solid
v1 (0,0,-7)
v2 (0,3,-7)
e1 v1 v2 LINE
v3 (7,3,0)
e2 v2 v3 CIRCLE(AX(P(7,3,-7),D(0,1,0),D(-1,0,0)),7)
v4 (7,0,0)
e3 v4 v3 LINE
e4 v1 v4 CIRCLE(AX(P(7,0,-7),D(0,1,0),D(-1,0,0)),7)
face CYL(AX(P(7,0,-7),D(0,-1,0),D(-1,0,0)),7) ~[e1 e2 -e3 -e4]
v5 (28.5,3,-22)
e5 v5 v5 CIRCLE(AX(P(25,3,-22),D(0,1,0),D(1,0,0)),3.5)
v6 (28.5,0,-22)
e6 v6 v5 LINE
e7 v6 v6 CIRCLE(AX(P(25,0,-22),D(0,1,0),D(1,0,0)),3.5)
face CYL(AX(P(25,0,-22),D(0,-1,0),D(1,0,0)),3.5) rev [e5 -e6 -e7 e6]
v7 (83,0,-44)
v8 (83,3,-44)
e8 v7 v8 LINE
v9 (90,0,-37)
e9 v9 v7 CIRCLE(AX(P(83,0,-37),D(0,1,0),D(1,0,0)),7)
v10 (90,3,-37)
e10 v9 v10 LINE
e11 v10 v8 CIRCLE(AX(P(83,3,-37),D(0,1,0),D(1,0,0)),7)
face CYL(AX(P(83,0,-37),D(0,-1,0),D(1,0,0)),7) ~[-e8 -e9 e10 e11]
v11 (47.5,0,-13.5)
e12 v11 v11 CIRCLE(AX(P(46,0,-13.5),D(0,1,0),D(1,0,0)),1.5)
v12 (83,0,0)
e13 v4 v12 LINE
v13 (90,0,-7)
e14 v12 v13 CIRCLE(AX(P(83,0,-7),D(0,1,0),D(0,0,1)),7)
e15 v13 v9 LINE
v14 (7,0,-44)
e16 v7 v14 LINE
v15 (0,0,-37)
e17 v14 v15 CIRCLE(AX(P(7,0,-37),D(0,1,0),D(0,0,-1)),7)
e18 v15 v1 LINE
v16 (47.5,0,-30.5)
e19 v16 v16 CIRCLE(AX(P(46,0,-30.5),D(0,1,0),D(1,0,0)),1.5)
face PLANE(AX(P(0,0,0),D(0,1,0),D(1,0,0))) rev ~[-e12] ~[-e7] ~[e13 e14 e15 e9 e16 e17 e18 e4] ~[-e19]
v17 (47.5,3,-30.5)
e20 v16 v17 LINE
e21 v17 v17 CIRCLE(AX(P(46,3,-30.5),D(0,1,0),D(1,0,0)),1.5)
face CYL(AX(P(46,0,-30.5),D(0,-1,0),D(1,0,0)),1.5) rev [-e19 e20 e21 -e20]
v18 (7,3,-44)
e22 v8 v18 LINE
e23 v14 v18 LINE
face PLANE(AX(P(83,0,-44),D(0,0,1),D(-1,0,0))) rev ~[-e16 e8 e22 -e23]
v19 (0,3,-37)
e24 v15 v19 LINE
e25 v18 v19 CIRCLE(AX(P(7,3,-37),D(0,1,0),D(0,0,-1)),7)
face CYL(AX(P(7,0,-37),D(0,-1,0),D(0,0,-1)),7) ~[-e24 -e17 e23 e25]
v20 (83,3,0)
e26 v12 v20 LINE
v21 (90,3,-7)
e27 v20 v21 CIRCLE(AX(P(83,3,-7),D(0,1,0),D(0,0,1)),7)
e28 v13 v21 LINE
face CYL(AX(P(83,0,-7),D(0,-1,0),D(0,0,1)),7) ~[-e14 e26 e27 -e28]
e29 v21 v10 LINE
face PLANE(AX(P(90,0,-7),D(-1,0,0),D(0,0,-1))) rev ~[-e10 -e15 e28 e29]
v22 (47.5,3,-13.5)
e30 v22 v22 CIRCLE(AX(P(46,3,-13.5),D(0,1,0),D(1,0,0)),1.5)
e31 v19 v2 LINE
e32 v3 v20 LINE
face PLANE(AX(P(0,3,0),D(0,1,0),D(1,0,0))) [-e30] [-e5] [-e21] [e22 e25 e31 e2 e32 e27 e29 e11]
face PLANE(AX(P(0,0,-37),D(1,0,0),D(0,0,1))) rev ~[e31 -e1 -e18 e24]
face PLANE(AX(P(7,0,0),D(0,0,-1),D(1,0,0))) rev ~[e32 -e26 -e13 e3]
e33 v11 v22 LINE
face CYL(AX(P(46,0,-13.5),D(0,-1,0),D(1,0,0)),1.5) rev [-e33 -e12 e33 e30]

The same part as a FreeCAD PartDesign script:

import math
import FreeCAD as App
import Part
import Sketcher

V = App.Vector
Q = App.Units.Quantity

doc = App.newDocument("Part")
body = doc.addObject("PartDesign::Body", "Body")

# Sketch on XZ plane
sketch1 = body.newObject("Sketcher::SketchObject", "Sketch")
sketch1.AttachmentSupport = (doc.getObject("XZ_Plane"), [""])
sketch1.MapMode = "FlatFace"
sketch1.addGeometry([
    Part.ArcOfCircle(Part.Circle(V(7, -7, 0), V(0, 0, 1), 7), math.radians(90), math.radians(180)),  # 0
    Part.LineSegment(V(7, 0, 0), V(83, 0, 0)),  # 1
    Part.ArcOfCircle(Part.Circle(V(83, -7, 0), V(0, 0, 1), 7), math.radians(0), math.radians(90)),  # 2
    Part.LineSegment(V(90, -7, 0), V(90, -37, 0)),  # 3
    Part.ArcOfCircle(Part.Circle(V(83, -37, 0), V(0, 0, 1), 7), math.radians(-90), math.radians(0)),  # 4
    Part.LineSegment(V(83, -44, 0), V(7, -44, 0)),  # 5
    Part.ArcOfCircle(Part.Circle(V(7, -37, 0), V(0, 0, 1), 7), math.radians(180), math.radians(270)),  # 6
    Part.LineSegment(V(0, -37, 0), V(0, -7, 0)),  # 7
    Part.Circle(V(46, -13.5, 0), V(0, 0, 1), 1.5),  # 8
    Part.Circle(V(25, -22, 0), V(0, 0, 1), 3.5),  # 9
    Part.Circle(V(46, -30.5, 0), V(0, 0, 1), 1.5),  # 10
], False)
sketch1.addConstraint([
    Sketcher.Constraint("Tangent", 0, 1, 1, 1),
    Sketcher.Constraint("Tangent", 1, 2, 2, 2),
    Sketcher.Constraint("Tangent", 2, 1, 3, 1),
    Sketcher.Constraint("Tangent", 3, 2, 4, 2),
    Sketcher.Constraint("Tangent", 4, 1, 5, 1),
    Sketcher.Constraint("Tangent", 5, 2, 6, 2),
    Sketcher.Constraint("Tangent", 6, 1, 7, 1),
    Sketcher.Constraint("Tangent", 7, 2, 0, 2),
    Sketcher.Constraint("Horizontal", 1),
    Sketcher.Constraint("Vertical", 3),
    Sketcher.Constraint("Horizontal", 5),
    Sketcher.Constraint("Vertical", 7),
    Sketcher.Constraint("Equal", 0, 2),
    Sketcher.Constraint("Equal", 2, 4),
    Sketcher.Constraint("Equal", 4, 6),
    Sketcher.Constraint("Equal", 8, 10),
    Sketcher.Constraint("PointOnObject", 0, 1, -1),
    Sketcher.Constraint("PointOnObject", 6, 1, -2),
    Sketcher.Constraint("Vertical", 8, 3, 10, 3),
    Sketcher.Constraint("Diameter", 8, Q("3 mm")),
    Sketcher.Constraint("Diameter", 9, Q("7 mm")),
    Sketcher.Constraint("Radius", 0, Q("7 mm")),
    Sketcher.Constraint("DistanceX", -1, 1, 9, 3, Q("25 mm")),
    Sketcher.Constraint("DistanceX", -1, 1, 2, 1, Q("90 mm")),
    Sketcher.Constraint("DistanceY", 4, 1, -1, 1, Q("44 mm")),
    Sketcher.Constraint("DistanceX", 9, 3, 8, 3, Q("21 mm")),
    Sketcher.Constraint("DistanceY", 10, 3, 8, 3, Q("17 mm")),
    Sketcher.Constraint("DistanceY", 9, 3, 8, 3, Q("8.5 mm")),
    Sketcher.Constraint("DistanceY", 9, 3, -1, 1, Q("22 mm")),
])
pad1 = body.newObject("PartDesign::Pad", "Pad")
pad1.Profile = sketch1
pad1.Length = 3
pad1.Reversed = True

doc.recompute()
